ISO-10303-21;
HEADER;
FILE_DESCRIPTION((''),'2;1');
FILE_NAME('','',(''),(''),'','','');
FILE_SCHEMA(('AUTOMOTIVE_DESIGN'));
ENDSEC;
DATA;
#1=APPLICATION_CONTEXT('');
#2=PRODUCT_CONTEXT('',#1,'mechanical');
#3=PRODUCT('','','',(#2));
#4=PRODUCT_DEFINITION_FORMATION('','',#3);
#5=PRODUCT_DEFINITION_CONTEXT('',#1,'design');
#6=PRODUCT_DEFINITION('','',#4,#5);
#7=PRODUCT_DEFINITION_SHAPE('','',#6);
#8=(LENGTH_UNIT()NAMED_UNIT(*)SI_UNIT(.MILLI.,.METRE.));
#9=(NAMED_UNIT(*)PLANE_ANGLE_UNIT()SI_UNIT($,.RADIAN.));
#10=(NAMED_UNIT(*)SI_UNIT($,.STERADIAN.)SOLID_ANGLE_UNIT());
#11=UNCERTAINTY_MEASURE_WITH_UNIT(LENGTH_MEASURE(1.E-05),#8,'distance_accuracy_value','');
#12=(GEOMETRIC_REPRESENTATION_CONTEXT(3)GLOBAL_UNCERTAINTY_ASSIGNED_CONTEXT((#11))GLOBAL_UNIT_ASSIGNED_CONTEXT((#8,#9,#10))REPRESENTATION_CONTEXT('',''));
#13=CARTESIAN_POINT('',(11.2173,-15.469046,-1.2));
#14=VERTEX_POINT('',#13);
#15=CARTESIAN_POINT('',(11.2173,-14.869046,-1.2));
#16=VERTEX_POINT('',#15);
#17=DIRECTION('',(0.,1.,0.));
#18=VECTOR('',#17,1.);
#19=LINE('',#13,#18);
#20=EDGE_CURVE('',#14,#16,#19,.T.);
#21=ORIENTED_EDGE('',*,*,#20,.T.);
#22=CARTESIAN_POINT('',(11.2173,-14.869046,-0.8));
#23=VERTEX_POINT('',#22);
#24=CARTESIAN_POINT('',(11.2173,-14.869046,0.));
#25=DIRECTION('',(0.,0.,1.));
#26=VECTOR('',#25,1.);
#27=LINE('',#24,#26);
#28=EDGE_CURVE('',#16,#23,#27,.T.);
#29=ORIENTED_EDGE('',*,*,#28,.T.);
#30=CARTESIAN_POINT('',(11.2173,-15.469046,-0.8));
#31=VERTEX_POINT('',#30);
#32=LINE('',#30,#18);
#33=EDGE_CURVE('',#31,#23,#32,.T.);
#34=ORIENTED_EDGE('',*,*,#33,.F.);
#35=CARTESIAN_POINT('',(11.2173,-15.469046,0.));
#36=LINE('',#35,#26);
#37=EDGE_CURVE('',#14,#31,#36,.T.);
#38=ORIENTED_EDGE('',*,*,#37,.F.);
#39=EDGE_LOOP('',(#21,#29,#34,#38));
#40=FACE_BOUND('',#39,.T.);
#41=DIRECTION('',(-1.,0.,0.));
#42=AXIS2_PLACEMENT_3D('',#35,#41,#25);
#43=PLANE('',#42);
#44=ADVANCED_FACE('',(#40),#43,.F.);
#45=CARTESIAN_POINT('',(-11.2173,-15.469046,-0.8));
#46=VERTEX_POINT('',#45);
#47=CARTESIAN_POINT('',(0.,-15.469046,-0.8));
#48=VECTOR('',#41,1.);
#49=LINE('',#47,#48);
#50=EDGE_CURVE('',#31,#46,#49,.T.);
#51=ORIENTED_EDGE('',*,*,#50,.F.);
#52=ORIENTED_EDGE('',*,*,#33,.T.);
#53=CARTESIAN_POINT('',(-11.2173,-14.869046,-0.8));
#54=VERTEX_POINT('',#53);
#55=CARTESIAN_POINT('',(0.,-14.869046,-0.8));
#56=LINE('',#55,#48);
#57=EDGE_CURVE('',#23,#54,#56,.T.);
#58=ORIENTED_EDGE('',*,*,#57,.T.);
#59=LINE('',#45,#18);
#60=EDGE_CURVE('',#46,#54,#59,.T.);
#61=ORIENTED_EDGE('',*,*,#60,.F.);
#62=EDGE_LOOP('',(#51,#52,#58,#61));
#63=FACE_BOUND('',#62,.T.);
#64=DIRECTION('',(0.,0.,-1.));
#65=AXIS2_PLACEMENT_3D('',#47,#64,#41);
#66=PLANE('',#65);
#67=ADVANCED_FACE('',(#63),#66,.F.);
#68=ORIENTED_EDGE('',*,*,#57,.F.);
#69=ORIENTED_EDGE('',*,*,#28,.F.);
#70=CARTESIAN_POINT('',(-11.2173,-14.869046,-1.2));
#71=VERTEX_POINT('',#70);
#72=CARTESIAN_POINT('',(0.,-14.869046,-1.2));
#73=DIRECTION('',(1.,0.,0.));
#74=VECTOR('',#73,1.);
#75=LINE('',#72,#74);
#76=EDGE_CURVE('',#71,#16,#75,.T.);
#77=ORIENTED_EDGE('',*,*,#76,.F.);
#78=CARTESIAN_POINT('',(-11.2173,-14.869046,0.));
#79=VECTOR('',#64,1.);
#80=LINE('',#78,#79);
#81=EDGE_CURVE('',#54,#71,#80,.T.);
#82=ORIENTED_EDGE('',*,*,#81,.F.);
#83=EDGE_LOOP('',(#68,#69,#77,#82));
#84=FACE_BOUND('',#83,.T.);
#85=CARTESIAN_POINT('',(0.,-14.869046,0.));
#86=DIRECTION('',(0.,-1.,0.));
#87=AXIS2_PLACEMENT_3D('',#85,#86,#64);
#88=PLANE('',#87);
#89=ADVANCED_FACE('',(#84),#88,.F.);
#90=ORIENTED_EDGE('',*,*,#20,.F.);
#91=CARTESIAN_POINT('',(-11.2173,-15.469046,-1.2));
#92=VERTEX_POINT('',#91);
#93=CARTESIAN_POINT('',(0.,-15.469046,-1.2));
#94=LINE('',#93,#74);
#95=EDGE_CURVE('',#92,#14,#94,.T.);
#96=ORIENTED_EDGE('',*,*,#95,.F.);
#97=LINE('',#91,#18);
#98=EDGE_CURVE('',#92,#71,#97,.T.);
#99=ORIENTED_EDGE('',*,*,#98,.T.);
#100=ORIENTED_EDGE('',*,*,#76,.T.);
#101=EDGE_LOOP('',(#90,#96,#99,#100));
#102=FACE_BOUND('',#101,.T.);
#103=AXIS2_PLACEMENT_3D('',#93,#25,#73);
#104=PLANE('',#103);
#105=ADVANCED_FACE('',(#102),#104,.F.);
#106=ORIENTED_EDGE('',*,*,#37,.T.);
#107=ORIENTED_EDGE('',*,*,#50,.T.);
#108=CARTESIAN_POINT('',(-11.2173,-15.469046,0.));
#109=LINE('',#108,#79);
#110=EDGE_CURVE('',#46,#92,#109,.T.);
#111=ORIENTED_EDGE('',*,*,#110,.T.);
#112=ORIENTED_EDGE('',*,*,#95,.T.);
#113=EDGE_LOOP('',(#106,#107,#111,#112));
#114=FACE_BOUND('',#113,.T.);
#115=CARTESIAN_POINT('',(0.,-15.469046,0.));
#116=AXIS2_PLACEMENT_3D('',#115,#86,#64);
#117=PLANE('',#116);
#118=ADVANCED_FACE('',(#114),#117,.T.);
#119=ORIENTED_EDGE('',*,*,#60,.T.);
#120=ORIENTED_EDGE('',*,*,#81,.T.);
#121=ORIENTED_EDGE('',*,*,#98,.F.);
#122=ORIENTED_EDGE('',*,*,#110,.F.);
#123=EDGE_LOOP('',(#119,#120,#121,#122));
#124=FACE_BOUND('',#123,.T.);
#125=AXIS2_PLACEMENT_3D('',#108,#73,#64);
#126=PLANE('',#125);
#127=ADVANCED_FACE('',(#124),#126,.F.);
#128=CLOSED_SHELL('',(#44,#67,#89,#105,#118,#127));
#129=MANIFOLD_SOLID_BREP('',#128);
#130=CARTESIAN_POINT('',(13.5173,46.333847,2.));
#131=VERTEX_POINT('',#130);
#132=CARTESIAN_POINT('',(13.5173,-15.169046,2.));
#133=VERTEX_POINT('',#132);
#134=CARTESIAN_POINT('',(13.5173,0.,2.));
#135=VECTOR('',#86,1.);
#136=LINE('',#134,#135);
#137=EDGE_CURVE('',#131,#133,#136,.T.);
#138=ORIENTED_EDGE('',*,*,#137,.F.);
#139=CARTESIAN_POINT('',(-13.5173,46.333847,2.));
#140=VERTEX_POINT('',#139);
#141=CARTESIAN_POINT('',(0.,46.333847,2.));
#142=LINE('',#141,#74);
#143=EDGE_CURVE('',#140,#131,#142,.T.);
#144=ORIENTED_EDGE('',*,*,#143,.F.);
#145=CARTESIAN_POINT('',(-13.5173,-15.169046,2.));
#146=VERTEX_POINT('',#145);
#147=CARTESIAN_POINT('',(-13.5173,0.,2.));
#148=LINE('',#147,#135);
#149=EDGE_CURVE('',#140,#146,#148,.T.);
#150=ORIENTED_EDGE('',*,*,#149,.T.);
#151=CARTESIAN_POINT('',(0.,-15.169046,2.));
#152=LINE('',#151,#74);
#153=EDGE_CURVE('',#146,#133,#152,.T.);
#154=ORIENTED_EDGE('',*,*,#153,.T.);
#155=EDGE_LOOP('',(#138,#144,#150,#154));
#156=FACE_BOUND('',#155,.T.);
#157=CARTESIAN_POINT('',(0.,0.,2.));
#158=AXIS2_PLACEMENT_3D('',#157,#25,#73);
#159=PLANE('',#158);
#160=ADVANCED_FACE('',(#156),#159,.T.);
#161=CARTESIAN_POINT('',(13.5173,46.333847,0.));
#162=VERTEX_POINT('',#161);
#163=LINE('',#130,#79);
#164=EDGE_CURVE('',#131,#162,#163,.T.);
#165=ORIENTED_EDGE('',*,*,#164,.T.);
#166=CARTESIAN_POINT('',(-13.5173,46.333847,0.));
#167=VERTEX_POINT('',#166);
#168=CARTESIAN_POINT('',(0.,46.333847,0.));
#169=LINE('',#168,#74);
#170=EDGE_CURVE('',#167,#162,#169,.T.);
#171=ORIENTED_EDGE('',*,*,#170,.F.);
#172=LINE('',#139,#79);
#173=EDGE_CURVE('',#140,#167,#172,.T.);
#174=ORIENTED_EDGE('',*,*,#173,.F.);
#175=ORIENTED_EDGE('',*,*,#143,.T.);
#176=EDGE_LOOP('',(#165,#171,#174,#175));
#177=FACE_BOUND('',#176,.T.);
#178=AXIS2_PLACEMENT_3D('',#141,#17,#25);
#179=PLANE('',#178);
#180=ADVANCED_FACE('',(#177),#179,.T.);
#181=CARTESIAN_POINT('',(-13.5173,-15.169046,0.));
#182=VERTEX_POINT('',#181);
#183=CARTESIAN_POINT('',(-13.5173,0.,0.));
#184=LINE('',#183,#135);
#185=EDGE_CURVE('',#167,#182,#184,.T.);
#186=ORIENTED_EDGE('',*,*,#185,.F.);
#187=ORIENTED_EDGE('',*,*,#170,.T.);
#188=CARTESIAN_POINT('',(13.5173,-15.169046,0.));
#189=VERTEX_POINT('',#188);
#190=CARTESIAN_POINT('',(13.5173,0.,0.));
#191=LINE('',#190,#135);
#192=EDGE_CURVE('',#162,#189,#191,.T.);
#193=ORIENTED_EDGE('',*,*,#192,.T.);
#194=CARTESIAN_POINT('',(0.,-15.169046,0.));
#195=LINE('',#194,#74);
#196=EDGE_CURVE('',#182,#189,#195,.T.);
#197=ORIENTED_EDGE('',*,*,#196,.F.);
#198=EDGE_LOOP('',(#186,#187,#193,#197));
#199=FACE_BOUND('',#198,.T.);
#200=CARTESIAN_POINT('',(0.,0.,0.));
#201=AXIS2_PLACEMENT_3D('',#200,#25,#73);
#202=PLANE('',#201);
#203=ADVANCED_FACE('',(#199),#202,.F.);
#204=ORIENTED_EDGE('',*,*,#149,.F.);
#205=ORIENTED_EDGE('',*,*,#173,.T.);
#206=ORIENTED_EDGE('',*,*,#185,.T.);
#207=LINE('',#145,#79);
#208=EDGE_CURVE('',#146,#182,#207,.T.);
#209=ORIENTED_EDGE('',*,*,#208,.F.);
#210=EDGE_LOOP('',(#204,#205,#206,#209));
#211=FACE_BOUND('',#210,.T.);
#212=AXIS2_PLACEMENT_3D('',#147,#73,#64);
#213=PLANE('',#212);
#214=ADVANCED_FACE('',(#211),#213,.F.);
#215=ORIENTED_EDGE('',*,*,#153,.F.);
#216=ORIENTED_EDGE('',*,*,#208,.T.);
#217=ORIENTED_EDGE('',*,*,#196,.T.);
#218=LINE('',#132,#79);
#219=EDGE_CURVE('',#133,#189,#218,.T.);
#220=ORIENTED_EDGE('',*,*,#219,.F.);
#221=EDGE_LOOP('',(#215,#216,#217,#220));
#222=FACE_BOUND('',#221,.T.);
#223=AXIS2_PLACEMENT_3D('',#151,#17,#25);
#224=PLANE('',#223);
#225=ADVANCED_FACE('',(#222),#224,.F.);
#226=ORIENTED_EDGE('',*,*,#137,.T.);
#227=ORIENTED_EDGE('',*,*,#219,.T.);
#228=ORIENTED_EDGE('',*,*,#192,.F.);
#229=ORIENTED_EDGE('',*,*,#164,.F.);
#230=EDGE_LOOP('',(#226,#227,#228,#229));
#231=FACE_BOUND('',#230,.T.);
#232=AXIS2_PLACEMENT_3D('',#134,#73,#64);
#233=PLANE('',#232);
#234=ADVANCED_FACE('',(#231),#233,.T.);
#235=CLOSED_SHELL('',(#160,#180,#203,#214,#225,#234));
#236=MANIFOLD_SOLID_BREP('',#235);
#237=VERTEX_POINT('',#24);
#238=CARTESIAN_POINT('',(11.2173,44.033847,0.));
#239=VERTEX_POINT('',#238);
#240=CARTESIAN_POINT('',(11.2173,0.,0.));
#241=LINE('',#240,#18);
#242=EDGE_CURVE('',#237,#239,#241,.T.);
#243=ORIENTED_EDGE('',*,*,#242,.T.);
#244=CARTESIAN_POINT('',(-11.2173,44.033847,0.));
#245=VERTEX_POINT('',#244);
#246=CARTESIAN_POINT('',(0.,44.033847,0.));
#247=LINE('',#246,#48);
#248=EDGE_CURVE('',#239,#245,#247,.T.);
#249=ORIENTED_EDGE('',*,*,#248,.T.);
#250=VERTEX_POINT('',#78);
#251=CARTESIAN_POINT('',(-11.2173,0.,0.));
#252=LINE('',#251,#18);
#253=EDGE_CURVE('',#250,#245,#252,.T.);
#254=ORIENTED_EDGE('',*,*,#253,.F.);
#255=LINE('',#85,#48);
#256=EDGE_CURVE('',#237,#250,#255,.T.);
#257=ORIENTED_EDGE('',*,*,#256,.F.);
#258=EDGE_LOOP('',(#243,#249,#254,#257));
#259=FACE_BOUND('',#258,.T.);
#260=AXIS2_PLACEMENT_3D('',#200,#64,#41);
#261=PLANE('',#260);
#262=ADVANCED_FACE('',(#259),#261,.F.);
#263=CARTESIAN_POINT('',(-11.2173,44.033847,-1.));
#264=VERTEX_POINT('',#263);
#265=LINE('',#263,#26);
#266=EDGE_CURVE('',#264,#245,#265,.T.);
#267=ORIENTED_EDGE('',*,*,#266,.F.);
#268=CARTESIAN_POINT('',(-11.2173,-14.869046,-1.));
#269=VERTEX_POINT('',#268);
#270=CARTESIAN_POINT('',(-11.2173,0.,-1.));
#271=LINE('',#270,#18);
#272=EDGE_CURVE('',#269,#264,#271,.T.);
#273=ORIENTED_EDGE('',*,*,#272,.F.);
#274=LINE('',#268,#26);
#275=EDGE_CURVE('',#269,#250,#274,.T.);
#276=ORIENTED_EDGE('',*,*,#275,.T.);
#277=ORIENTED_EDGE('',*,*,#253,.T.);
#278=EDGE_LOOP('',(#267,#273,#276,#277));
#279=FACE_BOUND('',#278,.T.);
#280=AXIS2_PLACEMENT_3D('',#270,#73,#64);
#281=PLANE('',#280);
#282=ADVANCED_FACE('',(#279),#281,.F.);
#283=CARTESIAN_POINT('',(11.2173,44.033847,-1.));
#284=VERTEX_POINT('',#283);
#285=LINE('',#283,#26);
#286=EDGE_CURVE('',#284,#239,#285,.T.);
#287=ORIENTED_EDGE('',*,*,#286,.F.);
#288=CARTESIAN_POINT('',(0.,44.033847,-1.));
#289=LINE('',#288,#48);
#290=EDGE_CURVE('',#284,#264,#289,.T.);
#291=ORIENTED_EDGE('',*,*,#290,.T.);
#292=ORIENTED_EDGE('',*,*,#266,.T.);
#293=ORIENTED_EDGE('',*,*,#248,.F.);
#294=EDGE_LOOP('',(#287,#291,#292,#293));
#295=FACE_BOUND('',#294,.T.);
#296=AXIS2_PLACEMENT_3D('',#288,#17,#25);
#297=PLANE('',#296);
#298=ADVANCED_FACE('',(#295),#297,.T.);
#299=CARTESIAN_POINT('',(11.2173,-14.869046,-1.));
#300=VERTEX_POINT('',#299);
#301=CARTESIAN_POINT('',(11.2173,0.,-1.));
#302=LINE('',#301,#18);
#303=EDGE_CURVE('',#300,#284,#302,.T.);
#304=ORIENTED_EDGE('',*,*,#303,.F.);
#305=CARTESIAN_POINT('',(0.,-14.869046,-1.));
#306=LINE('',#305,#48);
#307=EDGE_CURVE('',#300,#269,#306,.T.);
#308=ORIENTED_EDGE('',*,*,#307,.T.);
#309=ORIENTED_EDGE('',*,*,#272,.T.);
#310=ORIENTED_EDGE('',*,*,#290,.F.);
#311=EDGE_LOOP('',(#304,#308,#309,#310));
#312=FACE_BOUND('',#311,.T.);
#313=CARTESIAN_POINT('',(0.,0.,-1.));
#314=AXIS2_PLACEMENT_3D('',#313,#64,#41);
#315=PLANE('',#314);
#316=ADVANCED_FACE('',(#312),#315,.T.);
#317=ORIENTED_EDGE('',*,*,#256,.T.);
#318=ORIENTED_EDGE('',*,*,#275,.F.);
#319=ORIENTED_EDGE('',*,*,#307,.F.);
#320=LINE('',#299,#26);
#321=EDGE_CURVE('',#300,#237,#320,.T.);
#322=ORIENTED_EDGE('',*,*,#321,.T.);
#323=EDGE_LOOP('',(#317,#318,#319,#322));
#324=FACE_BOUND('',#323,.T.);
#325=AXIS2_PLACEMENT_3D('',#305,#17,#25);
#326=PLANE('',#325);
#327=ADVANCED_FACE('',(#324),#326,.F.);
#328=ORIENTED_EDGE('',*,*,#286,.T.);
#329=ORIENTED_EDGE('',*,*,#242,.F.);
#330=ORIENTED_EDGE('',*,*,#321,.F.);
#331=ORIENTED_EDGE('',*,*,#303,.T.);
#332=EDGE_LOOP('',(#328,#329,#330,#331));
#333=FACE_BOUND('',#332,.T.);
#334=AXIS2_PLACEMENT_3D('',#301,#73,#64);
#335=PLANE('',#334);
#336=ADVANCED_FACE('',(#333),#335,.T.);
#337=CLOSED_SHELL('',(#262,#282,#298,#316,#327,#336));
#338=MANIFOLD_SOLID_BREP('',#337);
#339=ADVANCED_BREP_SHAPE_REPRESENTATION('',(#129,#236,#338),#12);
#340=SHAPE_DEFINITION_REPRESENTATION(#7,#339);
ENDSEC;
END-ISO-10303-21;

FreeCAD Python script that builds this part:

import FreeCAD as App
import Part
import Sketcher

V = App.Vector
Q = App.Units.Quantity

doc = App.newDocument("Part")
body = doc.addObject("PartDesign::Body", "Body")

# Sketch on XY plane
sketch1 = doc.addObject("Sketcher::SketchObject", "Sketch")
body.addObject(sketch1)
sketch1.AttachmentSupport = (doc.XY_Plane, [""])
sketch1.MapMode = "FlatFace"
sketch1.addGeometry([
    Part.LineSegment(V(-14, 46, 0), V(-14, -15, 0)),
    Part.LineSegment(V(-14, -15, 0), V(14, -15, 0)),
    Part.LineSegment(V(14, -15, 0), V(14, 46, 0)),
    Part.LineSegment(V(14, 46, 0), V(-14, 46, 0)),
], False)
sketch1.addConstraint([
    Sketcher.Constraint("Coincident", 0, 2, 1, 1),
    Sketcher.Constraint("Coincident", 1, 2, 2, 1),
    Sketcher.Constraint("Coincident", 2, 2, 3, 1),
    Sketcher.Constraint("Coincident", 3, 2, 0, 1),
    Sketcher.Constraint("Vertical", 0),
    Sketcher.Constraint("Horizontal", 1),
    Sketcher.Constraint("Vertical", 2),
    Sketcher.Constraint("Horizontal", 3),
    Sketcher.Constraint("DistanceX", 1, 1, 1, 2, Q("27.034601 mm")),
    Sketcher.Constraint("DistanceX", 0, 2, -1, 1, Q("13.5173 mm")),
    Sketcher.Constraint("DistanceY", 0, 2, 0, 1, Q("61.502892 mm")),
    Sketcher.Constraint("DistanceY", 0, 2, -1, 1, Q("15.169046 mm")),
])
pad1 = doc.addObject("PartDesign::Pad", "Pad")
body.addObject(pad1)
pad1.Profile = sketch1
pad1.Length = 2
body2 = doc.addObject("PartDesign::Body", "Body001")

# Sketch on XY plane
sketch2 = doc.addObject("Sketcher::SketchObject", "Sketch001")
body2.addObject(sketch2)
sketch2.AttachmentSupport = (doc.getObject("XY_Plane001"), [""])
sketch2.MapMode = "FlatFace"
sketch2.addGeometry([
    Part.LineSegment(V(11, 44, 0), V(11, -15, 0)),
    Part.LineSegment(V(11, -15, 0), V(-11, -15, 0)),
    Part.LineSegment(V(-11, -15, 0), V(-11, 44, 0)),
    Part.LineSegment(V(-11, 44, 0), V(11, 44, 0)),
], False)
sketch2.addConstraint([
    Sketcher.Constraint("Coincident", 0, 2, 1, 1),
    Sketcher.Constraint("Coincident", 1, 2, 2, 1),
    Sketcher.Constraint("Coincident", 2, 2, 3, 1),
    Sketcher.Constraint("Coincident", 3, 2, 0, 1),
    Sketcher.Constraint("Vertical", 0),
    Sketcher.Constraint("Horizontal", 1),
    Sketcher.Constraint("Vertical", 2),
    Sketcher.Constraint("Horizontal", 3),
    Sketcher.Constraint("DistanceX", 1, 2, 1, 1, Q("22.434601 mm")),
    Sketcher.Constraint("DistanceX", -1, 1, 0, 2, Q("11.2173 mm")),
    Sketcher.Constraint("DistanceY", 0, 2, 0, 1, Q("58.902892 mm")),
    Sketcher.Constraint("DistanceY", 0, 2, -1, 1, Q("14.869046 mm")),
])
pad2 = doc.addObject("PartDesign::Pad", "Pad001")
body2.addObject(pad2)
pad2.Profile = sketch2
pad2.Length = 1
pad2.Reversed = True
body3 = doc.addObject("PartDesign::Body", "Body002")

# Sketch on XZ plane
sketch3 = doc.addObject("Sketcher::SketchObject", "Sketch002")
body3.addObject(sketch3)
sketch3.AttachmentSupport = (doc.getObject("XZ_Plane002"), [""])
sketch3.MapMode = "FlatFace"
sketch3.AttachmentOffset = App.Placement(V(0, 0, 14.869046), App.Rotation())
sketch3.addGeometry([
    Part.LineSegment(V(-11.22, -1.2, 0), V(11.22, -1.2, 0)),
    Part.LineSegment(V(11.22, -1.2, 0), V(11.22, -0.8, 0)),
    Part.LineSegment(V(11.22, -0.8, 0), V(-11.22, -0.8, 0)),
    Part.LineSegment(V(-11.22, -0.8, 0), V(-11.22, -1.2, 0)),
], False)
sketch3.addConstraint([
    Sketcher.Constraint("Coincident", 0, 2, 1, 1),
    Sketcher.Constraint("Coincident", 1, 2, 2, 1),
    Sketcher.Constraint("Coincident", 2, 2, 3, 1),
    Sketcher.Constraint("Coincident", 3, 2, 0, 1),
    Sketcher.Constraint("Horizontal", 0),
    Sketcher.Constraint("Vertical", 1),
    Sketcher.Constraint("Horizontal", 2),
    Sketcher.Constraint("Vertical", 3),
    Sketcher.Constraint("DistanceY", 1, 1, 1, 2, Q("0.4 mm")),
    Sketcher.Constraint("DistanceY", 0, 2, -1, 1, Q("1.2 mm")),
    Sketcher.Constraint("DistanceX", 0, 1, 0, 2, Q("22.434601 mm")),
    Sketcher.Constraint("DistanceX", -1, 1, 0, 2, Q("11.2173 mm")),
])
pad3 = doc.addObject("PartDesign::Pad", "Pad002")
body3.addObject(pad3)
pad3.Profile = sketch3
pad3.Length = 0.6

doc.recompute()
